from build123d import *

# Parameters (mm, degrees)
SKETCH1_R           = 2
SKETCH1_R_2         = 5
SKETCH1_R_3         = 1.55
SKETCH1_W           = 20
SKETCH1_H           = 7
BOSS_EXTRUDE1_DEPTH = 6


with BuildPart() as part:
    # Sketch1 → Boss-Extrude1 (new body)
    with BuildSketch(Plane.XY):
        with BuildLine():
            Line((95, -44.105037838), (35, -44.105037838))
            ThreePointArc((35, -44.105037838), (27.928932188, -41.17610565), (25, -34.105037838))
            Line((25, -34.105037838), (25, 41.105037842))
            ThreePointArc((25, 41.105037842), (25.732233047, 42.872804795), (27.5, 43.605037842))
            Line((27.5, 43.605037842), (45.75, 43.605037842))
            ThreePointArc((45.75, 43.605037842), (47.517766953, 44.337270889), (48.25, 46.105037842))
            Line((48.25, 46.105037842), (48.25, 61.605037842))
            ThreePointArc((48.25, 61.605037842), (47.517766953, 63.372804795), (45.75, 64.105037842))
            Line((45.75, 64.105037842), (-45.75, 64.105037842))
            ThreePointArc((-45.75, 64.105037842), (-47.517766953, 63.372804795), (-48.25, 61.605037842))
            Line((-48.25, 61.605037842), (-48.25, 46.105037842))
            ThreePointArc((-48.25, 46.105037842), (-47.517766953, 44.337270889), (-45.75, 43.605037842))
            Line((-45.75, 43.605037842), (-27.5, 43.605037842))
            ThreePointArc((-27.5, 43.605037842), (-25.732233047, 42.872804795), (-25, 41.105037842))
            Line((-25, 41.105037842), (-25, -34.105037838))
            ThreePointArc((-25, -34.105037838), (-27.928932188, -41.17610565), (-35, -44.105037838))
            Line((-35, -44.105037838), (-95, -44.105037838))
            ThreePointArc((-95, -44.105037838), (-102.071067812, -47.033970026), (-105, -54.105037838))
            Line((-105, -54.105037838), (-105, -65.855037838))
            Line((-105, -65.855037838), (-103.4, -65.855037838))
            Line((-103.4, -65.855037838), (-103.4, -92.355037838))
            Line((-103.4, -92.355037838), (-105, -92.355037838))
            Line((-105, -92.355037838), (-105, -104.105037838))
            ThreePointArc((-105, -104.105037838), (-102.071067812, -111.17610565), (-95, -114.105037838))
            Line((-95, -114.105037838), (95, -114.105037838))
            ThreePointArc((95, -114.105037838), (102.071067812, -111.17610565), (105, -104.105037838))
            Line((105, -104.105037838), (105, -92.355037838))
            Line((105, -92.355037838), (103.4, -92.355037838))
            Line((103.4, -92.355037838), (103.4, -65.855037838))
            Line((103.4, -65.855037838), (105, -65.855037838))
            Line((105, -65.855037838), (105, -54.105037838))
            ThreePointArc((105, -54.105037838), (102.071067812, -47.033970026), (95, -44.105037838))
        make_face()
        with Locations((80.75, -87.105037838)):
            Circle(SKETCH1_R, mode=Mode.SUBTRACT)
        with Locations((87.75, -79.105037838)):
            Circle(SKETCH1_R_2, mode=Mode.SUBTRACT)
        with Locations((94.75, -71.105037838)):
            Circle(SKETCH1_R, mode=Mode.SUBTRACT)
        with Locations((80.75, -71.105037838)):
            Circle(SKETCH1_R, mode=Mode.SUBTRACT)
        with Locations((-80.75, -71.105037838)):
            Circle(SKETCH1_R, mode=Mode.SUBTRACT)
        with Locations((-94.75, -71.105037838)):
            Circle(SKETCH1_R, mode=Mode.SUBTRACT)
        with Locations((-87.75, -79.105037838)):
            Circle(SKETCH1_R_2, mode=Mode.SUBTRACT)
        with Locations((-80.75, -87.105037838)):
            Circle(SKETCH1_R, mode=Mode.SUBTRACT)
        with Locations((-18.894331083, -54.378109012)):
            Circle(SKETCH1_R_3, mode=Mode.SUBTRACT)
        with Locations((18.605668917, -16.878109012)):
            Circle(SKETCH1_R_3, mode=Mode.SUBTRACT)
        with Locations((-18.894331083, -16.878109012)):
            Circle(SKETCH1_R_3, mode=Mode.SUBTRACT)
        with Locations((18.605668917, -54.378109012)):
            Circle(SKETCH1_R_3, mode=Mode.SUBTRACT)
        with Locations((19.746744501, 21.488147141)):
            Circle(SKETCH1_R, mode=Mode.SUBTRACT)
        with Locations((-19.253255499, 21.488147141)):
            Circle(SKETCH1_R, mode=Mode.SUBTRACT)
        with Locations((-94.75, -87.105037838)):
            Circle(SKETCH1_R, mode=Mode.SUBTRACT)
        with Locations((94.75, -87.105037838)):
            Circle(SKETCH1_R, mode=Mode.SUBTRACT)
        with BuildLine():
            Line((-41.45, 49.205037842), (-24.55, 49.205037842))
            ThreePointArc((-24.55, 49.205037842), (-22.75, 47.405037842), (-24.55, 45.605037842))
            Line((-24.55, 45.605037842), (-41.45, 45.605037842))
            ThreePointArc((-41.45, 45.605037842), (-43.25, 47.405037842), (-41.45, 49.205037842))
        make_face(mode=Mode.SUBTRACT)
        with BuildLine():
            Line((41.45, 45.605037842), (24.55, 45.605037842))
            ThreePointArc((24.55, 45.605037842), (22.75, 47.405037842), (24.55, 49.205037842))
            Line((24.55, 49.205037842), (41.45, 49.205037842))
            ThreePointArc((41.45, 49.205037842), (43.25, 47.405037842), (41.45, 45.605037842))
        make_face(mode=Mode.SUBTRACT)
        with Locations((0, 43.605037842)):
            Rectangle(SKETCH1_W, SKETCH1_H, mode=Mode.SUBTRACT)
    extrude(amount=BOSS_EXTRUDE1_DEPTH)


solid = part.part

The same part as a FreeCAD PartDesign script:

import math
import FreeCAD as App
import Part
import Sketcher
from FreeCAD import Vector
Q = App.Units.Quantity


def add_polygon(sketch, points):
    """Adds a closed chain of lines whose ends are joined by coincident constraints."""
    first, n = sketch.GeometryCount, len(points)
    for a, b in zip(points, points[1:] + points[:1]):
        sketch.addGeometry(Part.LineSegment(App.Vector(*a, 0), App.Vector(*b, 0)), False)
    for i in range(n):
        sketch.addConstraint(Sketcher.Constraint("Coincident", first + i, 2, first + (i + 1) % n, 1))

doc = App.newDocument("Part")
params = doc.addObject("Spreadsheet::Sheet", "Params")
for row, (alias, value) in enumerate([
    ("sketch1_diameter", "4 mm"),
    ("sketch1_diameter2", "10 mm"),
    ("sketch1_radius", "10 mm"),
    ("sketch1_diameter3", "3.1 mm"),
    ("sketch1_radius2", "2.5 mm"),
    ("pad1_length", "6 mm"),
], start=1):
    params.set(f"A{row}", alias)
    params.set(f"B{row}", "=" + value)
    params.setAlias(f"B{row}", alias)

body = doc.addObject("PartDesign::Body", "Body")

sketch1 = doc.addObject("Sketcher::SketchObject", "Sketch")
body.addObject(sketch1)
sketch1.AttachmentSupport = (doc.XY_Plane, [""])
sketch1.MapMode = "FlatFace"
sketch1.addGeometry(Part.LineSegment(Vector(95, -44.1, 0), Vector(35, -44.1, 0)), False)
sketch1.addGeometry(Part.ArcOfCircle(Part.Circle(Vector(35, -34.1, 0), Vector(0, 0, 1), 10), math.radians(180), math.radians(270)), False)
sketch1.addGeometry(Part.LineSegment(Vector(25, -34.1, 0), Vector(25, 41.1, 0)), False)
sketch1.addGeometry(Part.ArcOfCircle(Part.Circle(Vector(27.5, 41.1, 0), Vector(0, 0, 1), 2.5), math.radians(90), math.radians(180)), False)
sketch1.addGeometry(Part.LineSegment(Vector(27.5, 43.6, 0), Vector(45.8, 43.6, 0)), False)
sketch1.addGeometry(Part.ArcOfCircle(Part.Circle(Vector(45.8, 46.1, 0), Vector(0, 0, 1), 2.5), math.radians(-90), math.radians(0)), False)
sketch1.addGeometry(Part.LineSegment(Vector(48.2, 46.1, 0), Vector(48.2, 61.6, 0)), False)
sketch1.addGeometry(Part.ArcOfCircle(Part.Circle(Vector(45.8, 61.6, 0), Vector(0, 0, 1), 2.5), math.radians(0), math.radians(90)), False)
sketch1.addGeometry(Part.LineSegment(Vector(45.8, 64.1, 0), Vector(-45.8, 64.1, 0)), False)
sketch1.addGeometry(Part.ArcOfCircle(Part.Circle(Vector(-45.8, 61.6, 0), Vector(0, 0, 1), 2.5), math.radians(90), math.radians(180)), False)
sketch1.addGeometry(Part.LineSegment(Vector(-48.2, 61.6, 0), Vector(-48.2, 46.1, 0)), False)
sketch1.addGeometry(Part.ArcOfCircle(Part.Circle(Vector(-45.8, 46.1, 0), Vector(0, 0, 1), 2.5), math.radians(180), math.radians(270)), False)
sketch1.addGeometry(Part.LineSegment(Vector(-45.8, 43.6, 0), Vector(-27.5, 43.6, 0)), False)
sketch1.addGeometry(Part.ArcOfCircle(Part.Circle(Vector(-27.5, 41.1, 0), Vector(0, 0, 1), 2.5), math.radians(0), math.radians(90)), False)
sketch1.addGeometry(Part.LineSegment(Vector(-25, 41.1, 0), Vector(-25, -34.1, 0)), False)
sketch1.addGeometry(Part.ArcOfCircle(Part.Circle(Vector(-35, -34.1, 0), Vector(0, 0, 1), 10), math.radians(-90), math.radians(0)), False)
sketch1.addGeometry(Part.LineSegment(Vector(-35, -44.1, 0), Vector(-95, -44.1, 0)), False)
sketch1.addGeometry(Part.ArcOfCircle(Part.Circle(Vector(-95, -54.1, 0), Vector(0, 0, 1), 10), math.radians(90), math.radians(180)), False)
sketch1.addGeometry(Part.LineSegment(Vector(-105, -54.1, 0), Vector(-105, -65.9, 0)), False)
sketch1.addGeometry(Part.LineSegment(Vector(-105, -65.9, 0), Vector(-103.4, -65.9, 0)), False)
sketch1.addGeometry(Part.LineSegment(Vector(-103.4, -65.9, 0), Vector(-103.4, -92.4, 0)), False)
sketch1.addGeometry(Part.LineSegment(Vector(-103.4, -92.4, 0), Vector(-105, -92.4, 0)), False)
sketch1.addGeometry(Part.LineSegment(Vector(-105, -92.4, 0), Vector(-105, -104.1, 0)), False)
sketch1.addGeometry(Part.ArcOfCircle(Part.Circle(Vector(-95, -104.1, 0), Vector(0, 0, 1), 10), math.radians(180), math.radians(270)), False)
sketch1.addGeometry(Part.LineSegment(Vector(-95, -114.1, 0), Vector(95, -114.1, 0)), False)
sketch1.addGeometry(Part.ArcOfCircle(Part.Circle(Vector(95, -104.1, 0), Vector(0, 0, 1), 10), math.radians(-90), math.radians(0)), False)
sketch1.addGeometry(Part.LineSegment(Vector(105, -104.1, 0), Vector(105, -92.4, 0)), False)
sketch1.addGeometry(Part.LineSegment(Vector(105, -92.4, 0), Vector(103.4, -92.4, 0)), False)
sketch1.addGeometry(Part.LineSegment(Vector(103.4, -92.4, 0), Vector(103.4, -65.9, 0)), False)
sketch1.addGeometry(Part.LineSegment(Vector(103.4, -65.9, 0), Vector(105, -65.9, 0)), False)
sketch1.addGeometry(Part.LineSegment(Vector(105, -65.9, 0), Vector(105, -54.1, 0)), False)
sketch1.addGeometry(Part.ArcOfCircle(Part.Circle(Vector(95, -54.1, 0), Vector(0, 0, 1), 10), math.radians(0), math.radians(90)), False)
sketch1.addGeometry(Part.Circle(Vector(-94.8, -87.1, 0), Vector(0, 0, 1), 2), False)
sketch1.addGeometry(Part.Circle(Vector(-80.8, -87.1, 0), Vector(0, 0, 1), 2), False)
sketch1.addGeometry(Part.Circle(Vector(-87.8, -79.1, 0), Vector(0, 0, 1), 5), False)
sketch1.addGeometry(Part.Circle(Vector(-94.8, -71.1, 0), Vector(0, 0, 1), 2), False)
sketch1.addGeometry(Part.Circle(Vector(-80.8, -71.1, 0), Vector(0, 0, 1), 2), False)
sketch1.addGeometry(Part.Circle(Vector(-18.9, -54.4, 0), Vector(0, 0, 1), 1.6), False)
sketch1.addGeometry(Part.Circle(Vector(80.8, -87.1, 0), Vector(0, 0, 1), 2), False)
sketch1.addGeometry(Part.Circle(Vector(94.8, -87.1, 0), Vector(0, 0, 1), 2), False)
sketch1.addGeometry(Part.Circle(Vector(87.8, -79.1, 0), Vector(0, 0, 1), 5), False)
sketch1.addGeometry(Part.Circle(Vector(80.8, -71.1, 0), Vector(0, 0, 1), 2), False)
sketch1.addGeometry(Part.Circle(Vector(94.8, -71.1, 0), Vector(0, 0, 1), 2), False)
sketch1.addGeometry(Part.Circle(Vector(18.6, -54.4, 0), Vector(0, 0, 1), 1.6), False)
sketch1.addGeometry(Part.Circle(Vector(-18.9, -16.9, 0), Vector(0, 0, 1), 1.6), False)
sketch1.addGeometry(Part.Circle(Vector(-19.3, 21.5, 0), Vector(0, 0, 1), 2), False)
sketch1.addGeometry(Part.ArcOfCircle(Part.Circle(Vector(-41.5, 47.4, 0), Vector(0, 0, 1), 1.8), math.radians(90), math.radians(270)), False)
sketch1.addGeometry(Part.LineSegment(Vector(-41.5, 49.2, 0), Vector(-24.6, 49.2, 0)), False)
sketch1.addGeometry(Part.ArcOfCircle(Part.Circle(Vector(-24.6, 47.4, 0), Vector(0, 0, 1), 1.8), math.radians(-90), math.radians(90)), False)
sketch1.addGeometry(Part.LineSegment(Vector(-24.6, 45.6, 0), Vector(-41.5, 45.6, 0)), False)
sketch1.addGeometry(Part.Circle(Vector(18.6, -16.9, 0), Vector(0, 0, 1), 1.6), False)
sketch1.addGeometry(Part.Circle(Vector(19.7, 21.5, 0), Vector(0, 0, 1), 2), False)
add_polygon(sketch1, [(10, 40.1), (-10, 40.1), (-10, 47.1), (10, 47.1)])
sketch1.addGeometry(Part.ArcOfCircle(Part.Circle(Vector(41.5, 47.4, 0), Vector(0, 0, 1), 1.8), math.radians(-90), math.radians(90)), False)
sketch1.addGeometry(Part.LineSegment(Vector(41.5, 45.6, 0), Vector(24.6, 45.6, 0)), False)
sketch1.addGeometry(Part.ArcOfCircle(Part.Circle(Vector(24.6, 47.4, 0), Vector(0, 0, 1), 1.8), math.radians(90), math.radians(270)), False)
sketch1.addGeometry(Part.LineSegment(Vector(24.6, 49.2, 0), Vector(41.5, 49.2, 0)), False)
sketch1.addConstraint([
    Sketcher.Constraint("Tangent", 0, 2, 1, 2),
    Sketcher.Constraint("Tangent", 1, 1, 2, 1),
    Sketcher.Constraint("Tangent", 2, 2, 3, 2),
    Sketcher.Constraint("Tangent", 3, 1, 4, 1),
    Sketcher.Constraint("Tangent", 4, 2, 5, 1),
    Sketcher.Constraint("Tangent", 5, 2, 6, 1),
    Sketcher.Constraint("Tangent", 6, 2, 7, 1),
    Sketcher.Constraint("Tangent", 7, 2, 8, 1),
    Sketcher.Constraint("Tangent", 8, 2, 9, 1),
    Sketcher.Constraint("Tangent", 9, 2, 10, 1),
    Sketcher.Constraint("Tangent", 10, 2, 11, 1),
    Sketcher.Constraint("Tangent", 11, 2, 12, 1),
    Sketcher.Constraint("Tangent", 12, 2, 13, 2),
    Sketcher.Constraint("Tangent", 13, 1, 14, 1),
    Sketcher.Constraint("Tangent", 14, 2, 15, 2),
    Sketcher.Constraint("Tangent", 15, 1, 16, 1),
    Sketcher.Constraint("Tangent", 16, 2, 17, 1),
    Sketcher.Constraint("Tangent", 17, 2, 18, 1),
    Sketcher.Constraint("Coincident", 18, 2, 19, 1),
    Sketcher.Constraint("Coincident", 19, 2, 20, 1),
    Sketcher.Constraint("Coincident", 20, 2, 21, 1),
    Sketcher.Constraint("Coincident", 21, 2, 22, 1),
    Sketcher.Constraint("Tangent", 22, 2, 23, 1),
    Sketcher.Constraint("Tangent", 23, 2, 24, 1),
    Sketcher.Constraint("Tangent", 24, 2, 25, 1),
    Sketcher.Constraint("Tangent", 25, 2, 26, 1),
    Sketcher.Constraint("Coincident", 26, 2, 27, 1),
    Sketcher.Constraint("Coincident", 27, 2, 28, 1),
    Sketcher.Constraint("Coincident", 28, 2, 29, 1),
    Sketcher.Constraint("Coincident", 29, 2, 30, 1),
    Sketcher.Constraint("Tangent", 30, 2, 31, 1),
    Sketcher.Constraint("Tangent", 31, 2, 0, 1),
    Sketcher.Constraint("Tangent", 46, 1, 47, 1),
    Sketcher.Constraint("Tangent", 47, 2, 48, 2),
    Sketcher.Constraint("Tangent", 48, 1, 49, 1),
    Sketcher.Constraint("Tangent", 49, 2, 46, 2),
    Sketcher.Constraint("Tangent", 56, 1, 57, 1),
    Sketcher.Constraint("Tangent", 57, 2, 58, 2),
    Sketcher.Constraint("Tangent", 58, 1, 59, 1),
    Sketcher.Constraint("Tangent", 59, 2, 56, 2),
    Sketcher.Constraint("Horizontal", 0),
    Sketcher.Constraint("Vertical", 2),
    Sketcher.Constraint("Horizontal", 4),
    Sketcher.Constraint("Vertical", 6),
    Sketcher.Constraint("Horizontal", 8),
    Sketcher.Constraint("Vertical", 10),
    Sketcher.Constraint("Horizontal", 12),
    Sketcher.Constraint("Vertical", 14),
    Sketcher.Constraint("Horizontal", 16),
    Sketcher.Constraint("Vertical", 18),
    Sketcher.Constraint("Horizontal", 19),
    Sketcher.Constraint("Vertical", 20),
    Sketcher.Constraint("Horizontal", 21),
    Sketcher.Constraint("Vertical", 22),
    Sketcher.Constraint("Horizontal", 24),
    Sketcher.Constraint("Vertical", 26),
    Sketcher.Constraint("Horizontal", 27),
    Sketcher.Constraint("Vertical", 28),
    Sketcher.Constraint("Horizontal", 29),
    Sketcher.Constraint("Vertical", 30),
    Sketcher.Constraint("Horizontal", 47),
    Sketcher.Constraint("Horizontal", 49),
    Sketcher.Constraint("Horizontal", 52),
    Sketcher.Constraint("Vertical", 53),
    Sketcher.Constraint("Horizontal", 54),
    Sketcher.Constraint("Vertical", 55),
    Sketcher.Constraint("Horizontal", 57),
    Sketcher.Constraint("Horizontal", 59),
    Sketcher.Constraint("Equal", 3, 5),
    Sketcher.Constraint("Equal", 5, 7),
    Sketcher.Constraint("Equal", 7, 9),
    Sketcher.Constraint("Equal", 9, 11),
    Sketcher.Constraint("Equal", 11, 13),
    Sketcher.Constraint("Equal", 1, 15),
    Sketcher.Constraint("Equal", 15, 17),
    Sketcher.Constraint("Equal", 17, 23),
    Sketcher.Constraint("Equal", 23, 25),
    Sketcher.Constraint("Equal", 25, 31),
    Sketcher.Constraint("Equal", 32, 33),
    Sketcher.Constraint("Equal", 33, 35),
    Sketcher.Constraint("Equal", 35, 36),
    Sketcher.Constraint("Equal", 36, 38),
    Sketcher.Constraint("Equal", 38, 39),
    Sketcher.Constraint("Equal", 34, 40),
    Sketcher.Constraint("Equal", 39, 41),
    Sketcher.Constraint("Equal", 41, 42),
    Sketcher.Constraint("Equal", 37, 43),
    Sketcher.Constraint("Equal", 43, 44),
    Sketcher.Constraint("Equal", 42, 45),
    Sketcher.Constraint("Equal", 44, 50),
    Sketcher.Constraint("Equal", 45, 51),
    Sketcher.Constraint("Equal", 48, 56),
    Sketcher.Constraint("Symmetric", 5, 3, 11, 3, -2),
    Sketcher.Constraint("Symmetric", 1, 3, 15, 3, -2),
    Sketcher.Constraint("Symmetric", 33, 3, 38, 3, -2),
    Sketcher.Constraint("Symmetric", 32, 3, 39, 3, -2),
    Sketcher.Constraint("Symmetric", 34, 3, 40, 3, -2),
    Sketcher.Constraint("Symmetric", 36, 3, 41, 3, -2),
    Sketcher.Constraint("Symmetric", 35, 3, 42, 3, -2),
    Sketcher.Constraint("Symmetric", 46, 3, 56, 3, -2),
    Sketcher.Constraint("Symmetric", 21, 2, 26, 2, -2),
    Sketcher.Constraint("Symmetric", 19, 2, 28, 2, -2),
    Sketcher.Constraint("Horizontal", 32, 3, 33, 3),
    Sketcher.Constraint("Horizontal", 35, 3, 36, 3),
    Sketcher.Constraint("Horizontal", 37, 3, 43, 3),
    Sketcher.Constraint("Horizontal", 44, 3, 50, 3),
    Sketcher.Constraint("Horizontal", 45, 3, 51, 3),
    Sketcher.Constraint("Vertical", 17, 3, 23, 3),
    Sketcher.Constraint("Vertical", 25, 3, 31, 3),
    Sketcher.Constraint("Vertical", 32, 3, 35, 3),
    Sketcher.Constraint("Vertical", 33, 3, 36, 3),
    Sketcher.Constraint("Vertical", 37, 3, 44, 3),
    Sketcher.Constraint("Vertical", 43, 3, 50, 3),
    Sketcher.Constraint("Equal", 49, 57),
    Sketcher.Constraint("Equal", 18, 22),
    Sketcher.Constraint("Diameter", 32, Q("4 mm")),
    Sketcher.Constraint("Diameter", 34, Q("10 mm")),
    Sketcher.Constraint("Radius", 1, Q("10 mm")),
    Sketcher.Constraint("Diameter", 37, Q("3.1 mm")),
    Sketcher.Constraint("Radius", 3, Q("2.5 mm")),
    Sketcher.Constraint("Radius", 46, Q("1.8 mm")),
    Sketcher.Constraint("DistanceX", 0, 2, 0, 1, Q("60 mm")),
    Sketcher.Constraint("DistanceX", 24, 1, 24, 2, Q("190 mm")),
    Sketcher.Constraint("DistanceX", 52, 2, 52, 1, Q("20 mm")),
    Sketcher.Constraint("DistanceY", 53, 1, 53, 2, Q("7 mm")),
    Sketcher.Constraint("DistanceX", 8, 2, 8, 1, Q("91.5 mm")),
    Sketcher.Constraint("DistanceX", 19, 1, 19, 2, Q("1.6 mm")),
    Sketcher.Constraint("DistanceX", 47, 1, 47, 2, Q("16.9 mm")),
    Sketcher.Constraint("DistanceY", 6, 1, 6, 2, Q("15.5 mm")),
    Sketcher.Constraint("DistanceY", 20, 2, 20, 1, Q("26.5 mm")),
    Sketcher.Constraint("DistanceX", 52, 2, -1, 1, Q("10 mm")),
    Sketcher.Constraint("DistanceY", 18, 2, 18, 1, Q("11.75 mm")),
    Sketcher.Constraint("DistanceX", 32, 3, -1, 1, Q("94.75 mm")),
    Sketcher.Constraint("DistanceX", 33, 3, -1, 1, Q("80.75 mm")),
    Sketcher.Constraint("DistanceX", 34, 3, -1, 1, Q("87.75 mm")),
    Sketcher.Constraint("DistanceX", 46, 3, -1, 1, Q("41.45 mm")),
    Sketcher.Constraint("DistanceY", 2, 1, 2, 2, Q("75.210076 mm")),
    Sketcher.Constraint("DistanceX", 37, 3, -1, 1, Q("18.894331 mm")),
    Sketcher.Constraint("DistanceY", 37, 3, -1, 1, Q("54.378109 mm")),
    Sketcher.Constraint("DistanceX", -1, 1, 43, 3, Q("18.605669 mm")),
    Sketcher.Constraint("DistanceY", 44, 3, -1, 1, Q("16.878109 mm")),
    Sketcher.Constraint("DistanceY", 1, 3, -1, 1, Q("34.105038 mm")),
    Sketcher.Constraint("DistanceY", 32, 3, -1, 1, Q("87.105038 mm")),
    Sketcher.Constraint("DistanceY", 34, 3, -1, 1, Q("79.105038 mm")),
    Sketcher.Constraint("DistanceY", 35, 3, -1, 1, Q("71.105038 mm")),
    Sketcher.Constraint("DistanceX", 45, 3, -1, 1, Q("19.253255 mm")),
    Sketcher.Constraint("DistanceY", -1, 1, 45, 3, Q("21.488147 mm")),
    Sketcher.Constraint("DistanceY", -1, 1, 46, 3, Q("47.405038 mm")),
    Sketcher.Constraint("DistanceX", -1, 1, 51, 3, Q("19.746745 mm")),
    Sketcher.Constraint("DistanceY", -1, 1, 52, 2, Q("40.105038 mm")),
])
sketch1.setExpression("Constraints[119]", "Params.sketch1_diameter")
sketch1.setExpression("Constraints[120]", "Params.sketch1_diameter2")
sketch1.setExpression("Constraints[121]", "Params.sketch1_radius")
sketch1.setExpression("Constraints[122]", "Params.sketch1_diameter3")
sketch1.setExpression("Constraints[123]", "Params.sketch1_radius2")
pad1 = doc.addObject("PartDesign::Pad", "Pad")
body.addObject(pad1)
pad1.Profile = sketch1
pad1.setExpression("Length", "Params.pad1_length")

doc.recompute()
